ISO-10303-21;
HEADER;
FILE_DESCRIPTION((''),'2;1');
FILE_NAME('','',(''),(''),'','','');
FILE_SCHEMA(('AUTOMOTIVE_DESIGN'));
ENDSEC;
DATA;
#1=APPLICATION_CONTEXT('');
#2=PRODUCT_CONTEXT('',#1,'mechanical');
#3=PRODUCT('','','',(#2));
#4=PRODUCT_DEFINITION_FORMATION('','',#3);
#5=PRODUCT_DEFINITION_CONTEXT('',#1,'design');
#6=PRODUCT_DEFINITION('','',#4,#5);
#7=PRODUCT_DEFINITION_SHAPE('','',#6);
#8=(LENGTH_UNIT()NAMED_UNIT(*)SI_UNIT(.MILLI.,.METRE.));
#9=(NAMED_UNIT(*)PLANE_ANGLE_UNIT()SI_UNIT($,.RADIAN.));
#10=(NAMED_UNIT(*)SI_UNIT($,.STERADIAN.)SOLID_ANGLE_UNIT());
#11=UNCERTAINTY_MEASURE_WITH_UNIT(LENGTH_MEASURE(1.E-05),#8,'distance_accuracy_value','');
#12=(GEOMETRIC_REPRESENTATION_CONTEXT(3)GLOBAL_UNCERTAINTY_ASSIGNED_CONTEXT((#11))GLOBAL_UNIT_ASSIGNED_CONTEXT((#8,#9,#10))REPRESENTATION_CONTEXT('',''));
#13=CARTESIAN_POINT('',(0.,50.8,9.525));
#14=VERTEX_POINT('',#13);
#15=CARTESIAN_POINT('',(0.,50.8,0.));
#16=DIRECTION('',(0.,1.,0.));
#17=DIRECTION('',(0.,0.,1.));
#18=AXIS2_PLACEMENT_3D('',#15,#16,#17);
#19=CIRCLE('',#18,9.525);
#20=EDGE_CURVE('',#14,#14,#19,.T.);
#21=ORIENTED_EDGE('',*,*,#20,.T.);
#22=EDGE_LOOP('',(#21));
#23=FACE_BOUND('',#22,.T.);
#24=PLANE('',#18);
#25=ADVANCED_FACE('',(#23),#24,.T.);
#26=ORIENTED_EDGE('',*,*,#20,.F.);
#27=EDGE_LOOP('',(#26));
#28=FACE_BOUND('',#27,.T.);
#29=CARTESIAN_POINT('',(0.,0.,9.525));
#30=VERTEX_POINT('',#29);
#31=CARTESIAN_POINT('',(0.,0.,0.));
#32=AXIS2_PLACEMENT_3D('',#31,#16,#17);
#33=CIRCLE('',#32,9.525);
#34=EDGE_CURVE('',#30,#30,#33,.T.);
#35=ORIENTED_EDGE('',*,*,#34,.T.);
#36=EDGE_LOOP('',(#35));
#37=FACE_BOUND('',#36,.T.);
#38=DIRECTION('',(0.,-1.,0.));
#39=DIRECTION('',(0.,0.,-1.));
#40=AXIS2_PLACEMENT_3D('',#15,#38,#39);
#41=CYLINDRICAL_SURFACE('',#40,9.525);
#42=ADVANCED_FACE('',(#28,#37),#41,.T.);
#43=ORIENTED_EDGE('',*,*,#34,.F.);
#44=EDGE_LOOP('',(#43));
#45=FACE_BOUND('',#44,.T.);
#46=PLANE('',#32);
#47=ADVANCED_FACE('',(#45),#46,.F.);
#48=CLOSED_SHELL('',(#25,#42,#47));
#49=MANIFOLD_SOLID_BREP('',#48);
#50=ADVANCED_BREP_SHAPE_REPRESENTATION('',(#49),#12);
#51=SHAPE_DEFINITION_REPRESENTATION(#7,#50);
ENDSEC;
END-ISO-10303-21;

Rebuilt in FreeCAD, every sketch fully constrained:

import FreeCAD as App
import Part
import Sketcher

V = App.Vector
Q = App.Units.Quantity

doc = App.newDocument("Part")
params = doc.addObject("Spreadsheet::Sheet", "Params")
for row, (alias, value) in enumerate([
    ("sketch1_diameter", "0.75 in"),
    ("pad1_length", "2 in"),
], start=1):
    params.set(f"A{row}", alias)
    params.set(f"B{row}", "=" + value)
    params.setAlias(f"B{row}", alias)

body = doc.addObject("PartDesign::Body", "Body")

sketch1 = body.newObject("Sketcher::SketchObject", "Sketch")
sketch1.AttachmentSupport = (doc.getObject("XZ_Plane"), [""])
sketch1.MapMode = "FlatFace"
sketch1.addGeometry(Part.Circle(V(0, 0, 0), V(0, 0, 1), 10), False)
sketch1.addConstraint(Sketcher.Constraint("Coincident", 0, 3, -1, 1))
sketch1.addConstraint(Sketcher.Constraint("Diameter", 0, Q("0.75 in")))
sketch1.setExpression("Constraints[1]", "Params.sketch1_diameter")
pad1 = body.newObject("PartDesign::Pad", "Pad")
pad1.Profile = sketch1
pad1.setExpression("Length", "Params.pad1_length")
pad1.Reversed = True

doc.recompute()
